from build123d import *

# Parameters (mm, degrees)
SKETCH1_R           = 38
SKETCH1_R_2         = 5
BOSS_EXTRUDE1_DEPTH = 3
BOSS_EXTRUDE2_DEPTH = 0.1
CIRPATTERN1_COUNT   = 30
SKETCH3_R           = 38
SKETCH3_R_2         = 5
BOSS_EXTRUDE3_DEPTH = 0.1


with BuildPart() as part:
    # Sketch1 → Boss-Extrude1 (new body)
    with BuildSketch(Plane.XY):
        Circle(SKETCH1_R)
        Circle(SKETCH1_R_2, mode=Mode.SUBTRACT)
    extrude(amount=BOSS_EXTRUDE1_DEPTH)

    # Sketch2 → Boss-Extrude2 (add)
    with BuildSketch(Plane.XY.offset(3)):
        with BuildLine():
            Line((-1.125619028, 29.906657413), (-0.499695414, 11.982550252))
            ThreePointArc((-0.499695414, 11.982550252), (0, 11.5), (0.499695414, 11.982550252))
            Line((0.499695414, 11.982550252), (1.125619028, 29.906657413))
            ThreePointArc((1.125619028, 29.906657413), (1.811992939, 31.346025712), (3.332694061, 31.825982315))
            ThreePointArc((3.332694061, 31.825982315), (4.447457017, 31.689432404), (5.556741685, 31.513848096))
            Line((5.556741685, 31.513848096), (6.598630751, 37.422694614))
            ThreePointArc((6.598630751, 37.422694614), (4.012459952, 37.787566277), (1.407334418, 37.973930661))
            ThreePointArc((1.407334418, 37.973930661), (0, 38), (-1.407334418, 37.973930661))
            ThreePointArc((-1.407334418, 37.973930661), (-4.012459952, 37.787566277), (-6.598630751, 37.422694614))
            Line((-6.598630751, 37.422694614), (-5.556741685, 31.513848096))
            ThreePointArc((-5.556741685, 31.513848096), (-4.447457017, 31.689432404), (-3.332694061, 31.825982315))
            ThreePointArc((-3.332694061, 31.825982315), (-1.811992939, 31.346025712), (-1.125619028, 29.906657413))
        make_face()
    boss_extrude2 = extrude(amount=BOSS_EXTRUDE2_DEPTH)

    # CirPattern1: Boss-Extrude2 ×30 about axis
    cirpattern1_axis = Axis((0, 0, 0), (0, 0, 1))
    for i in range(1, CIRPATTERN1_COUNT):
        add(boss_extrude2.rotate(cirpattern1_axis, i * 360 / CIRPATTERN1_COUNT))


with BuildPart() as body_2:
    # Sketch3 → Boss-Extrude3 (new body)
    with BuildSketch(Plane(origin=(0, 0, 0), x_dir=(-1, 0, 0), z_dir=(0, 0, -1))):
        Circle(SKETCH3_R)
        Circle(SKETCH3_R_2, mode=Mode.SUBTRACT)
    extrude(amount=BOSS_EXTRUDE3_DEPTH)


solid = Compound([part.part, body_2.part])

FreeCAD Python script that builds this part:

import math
import FreeCAD as App
import Part
import Sketcher

V = App.Vector
Q = App.Units.Quantity

doc = App.newDocument("Part")
body = doc.addObject("PartDesign::Body", "Body")

sketch1 = body.newObject("Sketcher::SketchObject", "Sketch")
sketch1.AttachmentSupport = (doc.getObject("XY_Plane"), [""])
sketch1.MapMode = "FlatFace"
sketch1.addGeometry([
    Part.Circle(V(0, 0, 0), V(0, 0, 1), 38),
    Part.Circle(V(0, 0, 0), V(0, 0, 1), 5),
], False)
sketch1.addConstraint([
    Sketcher.Constraint("Coincident", 0, 3, -1, 1),
    Sketcher.Constraint("Coincident", 1, 3, -1, 1),
    Sketcher.Constraint("Diameter", 0, Q("76 mm")),
    Sketcher.Constraint("Diameter", 1, Q("10 mm")),
])
pad1 = body.newObject("PartDesign::Pad", "Pad")
pad1.Profile = sketch1
pad1.Length = 3

sketch2 = body.newObject("Sketcher::SketchObject", "Sketch001")
sketch2.AttachmentSupport = (doc.getObject("XY_Plane"), [""])
sketch2.MapMode = "FlatFace"
sketch2.AttachmentOffset = App.Placement(V(0, 0, 3), App.Rotation())
sketch2.addGeometry([
    Part.LineSegment(V(-1.1, 29.9, 0), V(-0.5, 12, 0)),
    Part.ArcOfCircle(Part.Circle(V(0, 12, 0), V(0, 0, 1), 0.5), math.radians(-178), math.radians(-2)),
    Part.LineSegment(V(0.5, 12, 0), V(1.1, 29.9, 0)),
    Part.ArcOfCircle(Part.Circle(V(3.1, 29.8, 0), V(0, 0, 1), 2), math.radians(84), math.radians(178)),
    Part.ArcOfCircle(Part.Circle(V(0, 0, 0), V(0, 0, 1), 32), math.radians(80), math.radians(84.02)),
    Part.LineSegment(V(5.6, 31.5, 0), V(6.6, 37.4, 0)),
    Part.ArcOfCircle(Part.Circle(V(0, 0, 0), V(0, 0, 1), 38), math.radians(80), math.radians(87.88)),
    Part.ArcOfCircle(Part.Circle(V(0, 0, 0), V(0, 0, 1), 38), math.radians(87.88), math.radians(92.12)),
    Part.ArcOfCircle(Part.Circle(V(0, 0, 0), V(0, 0, 1), 38), math.radians(92.12), math.radians(100)),
    Part.LineSegment(V(-6.6, 37.4, 0), V(-5.6, 31.5, 0)),
    Part.ArcOfCircle(Part.Circle(V(0, 0, 0), V(0, 0, 1), 32), math.radians(95.98), math.radians(100)),
    Part.ArcOfCircle(Part.Circle(V(-3.1, 29.8, 0), V(0, 0, 1), 2), math.radians(2), math.radians(96)),
], False)
sketch2.addConstraint([
    Sketcher.Constraint("Tangent", 0, 2, 1, 1),
    Sketcher.Constraint("Tangent", 1, 2, 2, 1),
    Sketcher.Constraint("Tangent", 2, 2, 3, 2),
    Sketcher.Constraint("Tangent", 3, 1, 4, 2),
    Sketcher.Constraint("Coincident", 4, 1, 5, 1),
    Sketcher.Constraint("Coincident", 5, 2, 6, 1),
    Sketcher.Constraint("Tangent", 6, 2, 7, 1),
    Sketcher.Constraint("Tangent", 7, 2, 8, 1),
    Sketcher.Constraint("Coincident", 8, 2, 9, 1),
    Sketcher.Constraint("Coincident", 9, 2, 10, 2),
    Sketcher.Constraint("Tangent", 10, 1, 11, 2),
    Sketcher.Constraint("Tangent", 11, 1, 0, 1),
    Sketcher.Constraint("Coincident", 4, 3, -1, 1),
    Sketcher.Constraint("Coincident", 6, 3, -1, 1),
    Sketcher.Constraint("Coincident", 8, 3, -1, 1),
    Sketcher.Constraint("Coincident", 10, 3, -1, 1),
    Sketcher.Constraint("Equal", 4, 10),
    Sketcher.Constraint("Equal", 3, 11),
    Sketcher.Constraint("Symmetric", 0, 2, 1, 2, -2),
    Sketcher.Constraint("Horizontal", 6, 2, 7, 2),
    Sketcher.Constraint("Horizontal", 5, 2, 8, 2),
    Sketcher.Constraint("Horizontal", 4, 1, 9, 2),
    Sketcher.Constraint("Radius", 3, Q("2 mm")),
    Sketcher.Constraint("Radius", 4, Q("32 mm")),
    Sketcher.Constraint("Radius", 6, Q("38 mm")),
    Sketcher.Constraint("Radius", 1, Q("0.5 mm")),
    Sketcher.Constraint("Angle", 0, Q("-88 deg")),
    Sketcher.Constraint("Angle", 5, Q("80 deg")),
    Sketcher.Constraint("DistanceY", -1, 1, 1, 3, Q("12 mm")),
    Sketcher.Constraint("DistanceX", -1, 1, 4, 1, Q("5.556742 mm")),
    Sketcher.Constraint("DistanceY", -1, 1, 6, 2, Q("37.973931 mm")),
])
pad2 = body.newObject("PartDesign::Pad", "Pad001")
pad2.Profile = sketch2
pad2.Length = 0.1
doc.recompute()

polarpattern = body.newObject("PartDesign::PolarPattern", "PolarPattern")
polarpattern.Originals = [pad2]
polarpattern.Axis = (doc.getObject("Z_Axis"), [""])
polarpattern.Angle = 360
polarpattern.Occurrences = 30
body.Tip = polarpattern
body2 = doc.addObject("PartDesign::Body", "Body001")

sketch3 = body2.newObject("Sketcher::SketchObject", "Sketch002")
sketch3.AttachmentSupport = (doc.getObject("XY_Plane001"), [""])
sketch3.MapMode = "FlatFace"
sketch3.addGeometry([
    Part.Circle(V(0, 0, 0), V(0, 0, 1), 38),
    Part.Circle(V(0, 0, 0), V(0, 0, 1), 5),
], False)
sketch3.addConstraint([
    Sketcher.Constraint("Coincident", 0, 3, -1, 1),
    Sketcher.Constraint("Coincident", 1, 3, -1, 1),
    Sketcher.Constraint("Diameter", 0, Q("76 mm")),
    Sketcher.Constraint("Diameter", 1, Q("10 mm")),
])
pad3 = body2.newObject("PartDesign::Pad", "Pad002")
pad3.Profile = sketch3
pad3.Length = 0.1
pad3.Reversed = True

doc.recompute()
